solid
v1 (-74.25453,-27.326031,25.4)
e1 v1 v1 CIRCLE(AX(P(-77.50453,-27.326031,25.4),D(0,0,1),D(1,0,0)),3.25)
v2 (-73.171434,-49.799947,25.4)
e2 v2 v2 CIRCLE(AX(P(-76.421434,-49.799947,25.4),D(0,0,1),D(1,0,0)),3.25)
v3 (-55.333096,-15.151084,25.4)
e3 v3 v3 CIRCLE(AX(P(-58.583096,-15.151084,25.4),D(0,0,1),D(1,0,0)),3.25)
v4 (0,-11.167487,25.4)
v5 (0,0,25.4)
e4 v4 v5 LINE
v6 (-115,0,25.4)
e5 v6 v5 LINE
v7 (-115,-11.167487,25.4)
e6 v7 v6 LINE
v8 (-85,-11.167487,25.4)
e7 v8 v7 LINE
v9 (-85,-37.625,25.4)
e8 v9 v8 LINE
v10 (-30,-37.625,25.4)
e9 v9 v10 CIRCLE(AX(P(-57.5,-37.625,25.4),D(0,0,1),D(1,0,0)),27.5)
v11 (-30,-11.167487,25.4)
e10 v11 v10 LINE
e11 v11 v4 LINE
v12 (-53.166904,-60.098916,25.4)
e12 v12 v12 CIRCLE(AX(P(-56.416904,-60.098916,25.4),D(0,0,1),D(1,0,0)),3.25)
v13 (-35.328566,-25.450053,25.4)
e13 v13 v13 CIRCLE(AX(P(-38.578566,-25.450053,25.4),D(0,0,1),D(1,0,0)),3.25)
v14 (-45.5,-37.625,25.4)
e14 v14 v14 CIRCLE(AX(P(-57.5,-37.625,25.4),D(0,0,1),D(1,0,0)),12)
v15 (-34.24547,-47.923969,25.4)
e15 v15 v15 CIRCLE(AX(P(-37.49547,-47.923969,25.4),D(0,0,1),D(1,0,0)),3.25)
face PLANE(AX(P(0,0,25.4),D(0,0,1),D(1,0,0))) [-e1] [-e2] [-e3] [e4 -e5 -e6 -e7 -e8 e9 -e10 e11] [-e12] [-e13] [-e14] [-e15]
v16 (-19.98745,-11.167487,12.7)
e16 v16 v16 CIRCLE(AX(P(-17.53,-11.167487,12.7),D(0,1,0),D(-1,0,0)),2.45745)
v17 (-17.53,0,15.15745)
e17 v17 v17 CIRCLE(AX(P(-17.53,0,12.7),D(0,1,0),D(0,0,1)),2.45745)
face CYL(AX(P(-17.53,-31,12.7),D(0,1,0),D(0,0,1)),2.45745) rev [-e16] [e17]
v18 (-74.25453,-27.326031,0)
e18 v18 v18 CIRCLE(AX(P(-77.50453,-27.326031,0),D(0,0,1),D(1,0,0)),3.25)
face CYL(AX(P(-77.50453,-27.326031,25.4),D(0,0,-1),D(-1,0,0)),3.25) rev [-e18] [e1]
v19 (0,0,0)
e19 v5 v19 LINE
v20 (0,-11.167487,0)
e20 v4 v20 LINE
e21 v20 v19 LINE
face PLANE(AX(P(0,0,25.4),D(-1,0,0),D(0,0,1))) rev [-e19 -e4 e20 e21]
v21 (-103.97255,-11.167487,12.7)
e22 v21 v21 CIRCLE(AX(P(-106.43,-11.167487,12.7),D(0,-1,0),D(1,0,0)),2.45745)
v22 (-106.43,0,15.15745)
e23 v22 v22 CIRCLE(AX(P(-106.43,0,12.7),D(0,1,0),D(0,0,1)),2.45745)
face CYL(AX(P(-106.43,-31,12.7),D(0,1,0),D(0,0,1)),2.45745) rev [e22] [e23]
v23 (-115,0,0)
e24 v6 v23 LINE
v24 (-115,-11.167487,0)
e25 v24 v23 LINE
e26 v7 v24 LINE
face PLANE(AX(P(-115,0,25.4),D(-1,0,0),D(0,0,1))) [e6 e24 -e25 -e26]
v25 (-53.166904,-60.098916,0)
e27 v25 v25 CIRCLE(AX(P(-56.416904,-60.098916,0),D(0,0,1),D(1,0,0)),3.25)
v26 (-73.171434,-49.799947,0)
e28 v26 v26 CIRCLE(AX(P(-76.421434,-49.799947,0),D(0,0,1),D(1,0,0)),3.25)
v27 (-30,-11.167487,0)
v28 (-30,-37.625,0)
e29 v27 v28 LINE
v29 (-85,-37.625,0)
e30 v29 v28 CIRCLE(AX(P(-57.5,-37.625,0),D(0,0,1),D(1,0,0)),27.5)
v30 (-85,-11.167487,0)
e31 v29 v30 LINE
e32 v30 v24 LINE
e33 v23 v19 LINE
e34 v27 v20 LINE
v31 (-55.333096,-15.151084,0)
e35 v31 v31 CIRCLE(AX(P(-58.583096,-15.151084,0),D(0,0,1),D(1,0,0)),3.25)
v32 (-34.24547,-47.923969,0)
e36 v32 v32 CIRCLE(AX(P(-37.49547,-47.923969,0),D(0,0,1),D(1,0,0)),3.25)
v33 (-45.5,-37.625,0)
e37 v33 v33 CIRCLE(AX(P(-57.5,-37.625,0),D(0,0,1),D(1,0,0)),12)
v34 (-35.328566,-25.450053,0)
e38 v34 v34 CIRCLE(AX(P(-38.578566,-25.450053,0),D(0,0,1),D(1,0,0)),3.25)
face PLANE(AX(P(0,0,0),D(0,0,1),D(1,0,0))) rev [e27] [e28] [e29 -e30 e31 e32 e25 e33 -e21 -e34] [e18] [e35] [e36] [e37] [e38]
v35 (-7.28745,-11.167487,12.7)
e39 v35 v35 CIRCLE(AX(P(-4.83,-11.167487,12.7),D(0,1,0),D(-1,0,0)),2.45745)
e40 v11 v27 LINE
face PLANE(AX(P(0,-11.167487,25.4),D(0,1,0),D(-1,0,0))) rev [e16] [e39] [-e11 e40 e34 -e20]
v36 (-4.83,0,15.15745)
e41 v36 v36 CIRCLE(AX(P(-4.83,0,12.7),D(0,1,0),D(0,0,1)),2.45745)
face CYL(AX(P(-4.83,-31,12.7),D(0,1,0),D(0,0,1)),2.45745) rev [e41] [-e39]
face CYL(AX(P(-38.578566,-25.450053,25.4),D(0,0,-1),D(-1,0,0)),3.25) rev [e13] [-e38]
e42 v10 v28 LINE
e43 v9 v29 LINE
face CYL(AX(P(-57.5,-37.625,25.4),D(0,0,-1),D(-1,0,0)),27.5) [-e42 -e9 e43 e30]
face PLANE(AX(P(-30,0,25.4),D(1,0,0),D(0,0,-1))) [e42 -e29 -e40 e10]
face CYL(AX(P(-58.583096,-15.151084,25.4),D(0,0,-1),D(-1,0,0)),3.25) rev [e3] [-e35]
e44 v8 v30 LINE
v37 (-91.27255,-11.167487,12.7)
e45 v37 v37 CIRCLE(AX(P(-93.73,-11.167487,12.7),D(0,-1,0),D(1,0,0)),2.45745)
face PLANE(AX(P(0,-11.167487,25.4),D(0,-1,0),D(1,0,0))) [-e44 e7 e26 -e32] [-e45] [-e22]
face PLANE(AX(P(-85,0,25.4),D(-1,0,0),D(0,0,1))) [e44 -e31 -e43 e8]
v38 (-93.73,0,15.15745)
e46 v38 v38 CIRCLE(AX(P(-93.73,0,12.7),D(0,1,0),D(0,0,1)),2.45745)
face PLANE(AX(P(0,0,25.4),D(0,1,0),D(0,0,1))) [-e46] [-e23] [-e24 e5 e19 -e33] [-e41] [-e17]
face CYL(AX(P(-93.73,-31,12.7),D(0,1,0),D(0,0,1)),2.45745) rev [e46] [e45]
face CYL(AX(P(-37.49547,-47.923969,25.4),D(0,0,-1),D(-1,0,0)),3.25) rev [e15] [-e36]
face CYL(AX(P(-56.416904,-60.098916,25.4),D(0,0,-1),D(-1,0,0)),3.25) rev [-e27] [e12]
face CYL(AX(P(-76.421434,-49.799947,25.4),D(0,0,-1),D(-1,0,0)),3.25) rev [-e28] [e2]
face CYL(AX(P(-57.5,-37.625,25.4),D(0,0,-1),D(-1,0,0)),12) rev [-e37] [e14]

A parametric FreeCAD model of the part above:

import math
import FreeCAD as App
import Part
import Sketcher

V = App.Vector
Q = App.Units.Quantity

doc = App.newDocument("Part")
params = doc.addObject("Spreadsheet::Sheet", "Params")
for row, (alias, value) in enumerate([
    ("sketch1_diameter", "24 mm"),
    ("sketch1_diameter2", "6.5 mm"),
    ("sketch1_radius", "27.5 mm"),
    ("sketch1_width", "30 mm"),
    ("pad1_length", "25.4 mm"),
    ("pocket1_length", "31 mm"),
], start=1):
    params.set(f"A{row}", alias)
    params.set(f"B{row}", "=" + value)
    params.setAlias(f"B{row}", alias)

body = doc.addObject("PartDesign::Body", "Body")

sketch1 = body.newObject("Sketcher::SketchObject", "Sketch")
sketch1.AttachmentSupport = (doc.getObject("XY_Plane"), [""])
sketch1.MapMode = "FlatFace"
sketch1.addGeometry(Part.LineSegment(V(-115, 0, 0), V(-115, -11.2, 0)), False)
sketch1.addGeometry(Part.LineSegment(V(-115, -11.2, 0), V(-85, -11.2, 0)), False)
sketch1.addGeometry(Part.LineSegment(V(-85, -11.2, 0), V(-85, -37.6, 0)), False)
sketch1.addGeometry(Part.ArcOfCircle(Part.Circle(V(-57.5, -37.6, 0), V(0, 0, 1), 27.5), math.radians(180), math.radians(360)), False)
sketch1.addGeometry(Part.LineSegment(V(-30, -37.6, 0), V(-30, -11.2, 0)), False)
sketch1.addGeometry(Part.LineSegment(V(-30, -11.2, 0), V(0, -11.2, 0)), False)
sketch1.addGeometry(Part.LineSegment(V(0, -11.2, 0), V(0, 0, 0)), False)
sketch1.addGeometry(Part.LineSegment(V(0, 0, 0), V(-30, 0, 0)), False)
sketch1.addGeometry(Part.LineSegment(V(-30, 0, 0), V(-85, 0, 0)), False)
sketch1.addGeometry(Part.LineSegment(V(-85, 0, 0), V(-115, 0, 0)), False)
sketch1.addGeometry(Part.Circle(V(-38.6, -25.5, 0), V(0, 0, 1), 3.2), False)
sketch1.addGeometry(Part.Circle(V(-76.4, -49.8, 0), V(0, 0, 1), 3.2), False)
sketch1.addGeometry(Part.Circle(V(-56.4, -60.1, 0), V(0, 0, 1), 3.2), False)
sketch1.addGeometry(Part.Circle(V(-37.5, -47.9, 0), V(0, 0, 1), 3.2), False)
sketch1.addGeometry(Part.Circle(V(-77.5, -27.3, 0), V(0, 0, 1), 3.2), False)
sketch1.addGeometry(Part.Circle(V(-57.5, -37.6, 0), V(0, 0, 1), 12), False)
sketch1.addGeometry(Part.Circle(V(-58.6, -15.2, 0), V(0, 0, 1), 3.2), False)
sketch1.addConstraint(Sketcher.Constraint("Coincident", 0, 2, 1, 1))
sketch1.addConstraint(Sketcher.Constraint("Coincident", 1, 2, 2, 1))
sketch1.addConstraint(Sketcher.Constraint("Tangent", 2, 2, 3, 1))
sketch1.addConstraint(Sketcher.Constraint("Tangent", 3, 2, 4, 1))
sketch1.addConstraint(Sketcher.Constraint("Coincident", 4, 2, 5, 1))
sketch1.addConstraint(Sketcher.Constraint("Coincident", 5, 2, 6, 1))
sketch1.addConstraint(Sketcher.Constraint("Coincident", 6, 2, 7, 1))
sketch1.addConstraint(Sketcher.Constraint("Coincident", 7, 2, 8, 1))
sketch1.addConstraint(Sketcher.Constraint("Coincident", 8, 2, 9, 1))
sketch1.addConstraint(Sketcher.Constraint("Coincident", 9, 2, 0, 1))
sketch1.addConstraint(Sketcher.Constraint("Vertical", 0))
sketch1.addConstraint(Sketcher.Constraint("Horizontal", 1))
sketch1.addConstraint(Sketcher.Constraint("Vertical", 2))
sketch1.addConstraint(Sketcher.Constraint("Vertical", 4))
sketch1.addConstraint(Sketcher.Constraint("Horizontal", 5))
sketch1.addConstraint(Sketcher.Constraint("Vertical", 6))
sketch1.addConstraint(Sketcher.Constraint("Horizontal", 7))
sketch1.addConstraint(Sketcher.Constraint("Horizontal", 8))
sketch1.addConstraint(Sketcher.Constraint("Horizontal", 9))
sketch1.addConstraint(Sketcher.Constraint("Coincident", 6, 2, -1, 1))
sketch1.addConstraint(Sketcher.Constraint("Coincident", 15, 3, 3, 3))
sketch1.addConstraint(Sketcher.Constraint("Equal", 10, 11))
sketch1.addConstraint(Sketcher.Constraint("Equal", 11, 12))
sketch1.addConstraint(Sketcher.Constraint("Equal", 12, 13))
sketch1.addConstraint(Sketcher.Constraint("Equal", 13, 14))
sketch1.addConstraint(Sketcher.Constraint("Equal", 14, 16))
sketch1.addConstraint(Sketcher.Constraint("Horizontal", 1, 2, 4, 2))
sketch1.addConstraint(Sketcher.Constraint("Vertical", 4, 2, 7, 2))
sketch1.addConstraint(Sketcher.Constraint("Vertical", 2, 2, 8, 2))
sketch1.addConstraint(Sketcher.Constraint("Equal", 1, 5))
sketch1.addConstraint(Sketcher.Constraint("Diameter", 15, Q("24 mm")))
sketch1.addConstraint(Sketcher.Constraint("Diameter", 10, Q("6.5 mm")))
sketch1.addConstraint(Sketcher.Constraint("Radius", 3, Q("27.5 mm")))
sketch1.addConstraint(Sketcher.Constraint("DistanceX", 1, 1, 1, 2, Q("30 mm")))
sketch1.addConstraint(Sketcher.Constraint("DistanceY", 3, 3, -1, 1, Q("37.625 mm")))
sketch1.addConstraint(Sketcher.Constraint("DistanceY", 0, 2, 0, 1, Q("11.167487 mm")))
sketch1.addConstraint(Sketcher.Constraint("DistanceX", 13, 3, -1, 1, Q("37.49547 mm")))
sketch1.addConstraint(Sketcher.Constraint("DistanceY", 13, 3, -1, 1, Q("47.923969 mm")))
sketch1.addConstraint(Sketcher.Constraint("DistanceX", 14, 3, -1, 1, Q("77.50453 mm")))
sketch1.addConstraint(Sketcher.Constraint("DistanceY", 14, 3, -1, 1, Q("27.326031 mm")))
sketch1.addConstraint(Sketcher.Constraint("DistanceX", 11, 3, 10, 3, Q("37.842868 mm")))
sketch1.addConstraint(Sketcher.Constraint("DistanceX", 11, 3, 12, 3, Q("20.00453 mm")))
sketch1.addConstraint(Sketcher.Constraint("DistanceY", 12, 3, 11, 3, Q("10.298969 mm")))
sketch1.addConstraint(Sketcher.Constraint("DistanceX", 16, 3, 10, 3, Q("20.00453 mm")))
sketch1.addConstraint(Sketcher.Constraint("DistanceY", 10, 3, 16, 3, Q("10.298969 mm")))
sketch1.addConstraint(Sketcher.Constraint("DistanceY", 11, 3, 0, 2, Q("38.63246 mm")))
sketch1.addConstraint(Sketcher.Constraint("DistanceX", 10, 3, -1, 1, Q("38.578566 mm")))
sketch1.addConstraint(Sketcher.Constraint("DistanceY", 10, 3, -1, 1, Q("25.450053 mm")))
sketch1.setExpression("Constraints[30]", "Params.sketch1_diameter")
sketch1.setExpression("Constraints[31]", "Params.sketch1_diameter2")
sketch1.setExpression("Constraints[32]", "Params.sketch1_radius")
sketch1.setExpression("Constraints[33]", "Params.sketch1_width")
pad1 = body.newObject("PartDesign::Pad", "Pad")
pad1.Profile = sketch1
pad1.setExpression("Length", "Params.pad1_length")

sketch2 = body.newObject("Sketcher::SketchObject", "Sketch001")
sketch2.AttachmentSupport = (doc.getObject("XZ_Plane"), [""])
sketch2.MapMode = "FlatFace"
sketch2.addGeometry(Part.Circle(V(-93.7, 12.7, 0), V(0, 0, 1), 2.5), False)
sketch2.addGeometry(Part.Circle(V(-106.4, 12.7, 0), V(0, 0, 1), 2.5), False)
sketch2.addGeometry(Part.Circle(V(-17.5, 12.7, 0), V(0, 0, 1), 2.5), False)
sketch2.addGeometry(Part.Circle(V(-4.8, 12.7, 0), V(0, 0, 1), 2.5), False)
sketch2.addConstraint(Sketcher.Constraint("Equal", 0, 1))
sketch2.addConstraint(Sketcher.Constraint("Equal", 1, 2))
sketch2.addConstraint(Sketcher.Constraint("Equal", 2, 3))
sketch2.addConstraint(Sketcher.Constraint("Horizontal", 0, 3, 1, 3))
sketch2.addConstraint(Sketcher.Constraint("Horizontal", 1, 3, 2, 3))
sketch2.addConstraint(Sketcher.Constraint("Horizontal", 2, 3, 3, 3))
sketch2.addConstraint(Sketcher.Constraint("Diameter", 0, Q("4.9149 mm")))
sketch2.addConstraint(Sketcher.Constraint("DistanceY", -1, 1, 0, 3, Q("12.7 mm")))
sketch2.addConstraint(Sketcher.Constraint("DistanceX", 1, 3, 0, 3, Q("12.7 mm")))
sketch2.addConstraint(Sketcher.Constraint("DistanceX", 0, 3, 2, 3, Q("76.2 mm")))
sketch2.addConstraint(Sketcher.Constraint("DistanceX", 2, 3, 3, 3, Q("12.7 mm")))
sketch2.addConstraint(Sketcher.Constraint("DistanceX", 0, 3, -1, 1, Q("93.73 mm")))
pocket1 = body.newObject("PartDesign::Pocket", "Pocket")
pocket1.Profile = sketch2
pocket1.setExpression("Length", "Params.pocket1_length")
pocket1.Reversed = True

doc.recompute()
